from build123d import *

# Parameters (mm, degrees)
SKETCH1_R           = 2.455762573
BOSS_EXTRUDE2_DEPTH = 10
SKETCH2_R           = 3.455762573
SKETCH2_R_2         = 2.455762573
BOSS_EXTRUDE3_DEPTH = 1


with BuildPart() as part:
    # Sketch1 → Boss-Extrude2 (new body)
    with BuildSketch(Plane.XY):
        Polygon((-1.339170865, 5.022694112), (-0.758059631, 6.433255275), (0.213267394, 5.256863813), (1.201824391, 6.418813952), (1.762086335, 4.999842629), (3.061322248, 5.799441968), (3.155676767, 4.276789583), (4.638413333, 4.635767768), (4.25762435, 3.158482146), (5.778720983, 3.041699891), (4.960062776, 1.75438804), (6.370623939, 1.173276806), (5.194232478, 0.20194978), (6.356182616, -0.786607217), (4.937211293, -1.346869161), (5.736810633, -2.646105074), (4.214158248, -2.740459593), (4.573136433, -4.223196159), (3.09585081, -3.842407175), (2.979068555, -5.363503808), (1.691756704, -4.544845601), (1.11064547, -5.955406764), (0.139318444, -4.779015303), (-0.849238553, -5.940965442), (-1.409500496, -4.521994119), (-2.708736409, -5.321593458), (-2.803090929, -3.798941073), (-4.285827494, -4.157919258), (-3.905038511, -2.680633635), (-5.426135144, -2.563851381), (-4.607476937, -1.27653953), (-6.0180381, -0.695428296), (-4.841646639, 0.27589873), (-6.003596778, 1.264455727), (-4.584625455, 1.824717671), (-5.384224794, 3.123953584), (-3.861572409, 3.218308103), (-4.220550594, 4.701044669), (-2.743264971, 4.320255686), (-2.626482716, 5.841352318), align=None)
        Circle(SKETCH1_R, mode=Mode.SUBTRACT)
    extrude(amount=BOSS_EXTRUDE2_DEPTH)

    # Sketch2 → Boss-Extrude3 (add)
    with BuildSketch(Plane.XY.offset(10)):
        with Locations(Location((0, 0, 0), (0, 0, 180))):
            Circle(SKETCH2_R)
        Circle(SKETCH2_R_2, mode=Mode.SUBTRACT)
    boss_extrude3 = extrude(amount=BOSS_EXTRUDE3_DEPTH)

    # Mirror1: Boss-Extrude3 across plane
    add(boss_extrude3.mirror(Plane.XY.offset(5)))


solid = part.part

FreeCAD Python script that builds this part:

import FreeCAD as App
import Part
import Sketcher
Q = App.Units.Quantity

doc = App.newDocument("Part")
body = doc.addObject("PartDesign::Body", "Body")

sketch1 = body.newObject("Sketcher::SketchObject", "Sketch")
sketch1.AttachmentSupport = (doc.getObject("XY_Plane"), [""])
sketch1.MapMode = "FlatFace"
sketch1.addGeometry(Part.LineSegment(App.Vector(-0.75806, 6.433255, 0), App.Vector(-1.339171, 5.022694, 0)), False)
sketch1.addGeometry(Part.LineSegment(App.Vector(-1.339171, 5.022694, 0), App.Vector(-2.626483, 5.841352, 0)), False)
sketch1.addGeometry(Part.LineSegment(App.Vector(-2.626483, 5.841352, 0), App.Vector(-2.743265, 4.320256, 0)), False)
sketch1.addGeometry(Part.LineSegment(App.Vector(-2.743265, 4.320256, 0), App.Vector(-4.220551, 4.701045, 0)), False)
sketch1.addGeometry(Part.LineSegment(App.Vector(-4.220551, 4.701045, 0), App.Vector(-3.861572, 3.218308, 0)), False)
sketch1.addGeometry(Part.LineSegment(App.Vector(-3.861572, 3.218308, 0), App.Vector(-5.384225, 3.123954, 0)), False)
sketch1.addGeometry(Part.LineSegment(App.Vector(-5.384225, 3.123954, 0), App.Vector(-4.584625, 1.824718, 0)), False)
sketch1.addGeometry(Part.LineSegment(App.Vector(-4.584625, 1.824718, 0), App.Vector(-6.003597, 1.264456, 0)), False)
sketch1.addGeometry(Part.LineSegment(App.Vector(-6.003597, 1.264456, 0), App.Vector(-4.841647, 0.275899, 0)), False)
sketch1.addGeometry(Part.LineSegment(App.Vector(-4.841647, 0.275899, 0), App.Vector(-6.018038, -0.695428, 0)), False)
sketch1.addGeometry(Part.LineSegment(App.Vector(-6.018038, -0.695428, 0), App.Vector(-4.607477, -1.27654, 0)), False)
sketch1.addGeometry(Part.LineSegment(App.Vector(-4.607477, -1.27654, 0), App.Vector(-5.426135, -2.563851, 0)), False)
sketch1.addGeometry(Part.LineSegment(App.Vector(-5.426135, -2.563851, 0), App.Vector(-3.905039, -2.680634, 0)), False)
sketch1.addGeometry(Part.LineSegment(App.Vector(-3.905039, -2.680634, 0), App.Vector(-4.285827, -4.157919, 0)), False)
sketch1.addGeometry(Part.LineSegment(App.Vector(-4.285827, -4.157919, 0), App.Vector(-2.803091, -3.798941, 0)), False)
sketch1.addGeometry(Part.LineSegment(App.Vector(-2.803091, -3.798941, 0), App.Vector(-2.708736, -5.321593, 0)), False)
sketch1.addGeometry(Part.LineSegment(App.Vector(-2.708736, -5.321593, 0), App.Vector(-1.4095, -4.521994, 0)), False)
sketch1.addGeometry(Part.LineSegment(App.Vector(-1.4095, -4.521994, 0), App.Vector(-0.849239, -5.940965, 0)), False)
sketch1.addGeometry(Part.LineSegment(App.Vector(-0.849239, -5.940965, 0), App.Vector(0.139318, -4.779015, 0)), False)
sketch1.addGeometry(Part.LineSegment(App.Vector(0.139318, -4.779015, 0), App.Vector(1.110645, -5.955407, 0)), False)
sketch1.addGeometry(Part.LineSegment(App.Vector(1.110645, -5.955407, 0), App.Vector(1.691757, -4.544846, 0)), False)
sketch1.addGeometry(Part.LineSegment(App.Vector(1.691757, -4.544846, 0), App.Vector(2.979069, -5.363504, 0)), False)
sketch1.addGeometry(Part.LineSegment(App.Vector(2.979069, -5.363504, 0), App.Vector(3.095851, -3.842407, 0)), False)
sketch1.addGeometry(Part.LineSegment(App.Vector(3.095851, -3.842407, 0), App.Vector(4.573136, -4.223196, 0)), False)
sketch1.addGeometry(Part.LineSegment(App.Vector(4.573136, -4.223196, 0), App.Vector(4.214158, -2.74046, 0)), False)
sketch1.addGeometry(Part.LineSegment(App.Vector(4.214158, -2.74046, 0), App.Vector(5.736811, -2.646105, 0)), False)
sketch1.addGeometry(Part.LineSegment(App.Vector(5.736811, -2.646105, 0), App.Vector(4.937211, -1.346869, 0)), False)
sketch1.addGeometry(Part.LineSegment(App.Vector(4.937211, -1.346869, 0), App.Vector(6.356183, -0.786607, 0)), False)
sketch1.addGeometry(Part.LineSegment(App.Vector(6.356183, -0.786607, 0), App.Vector(5.194232, 0.20195, 0)), False)
sketch1.addGeometry(Part.LineSegment(App.Vector(5.194232, 0.20195, 0), App.Vector(6.370624, 1.173277, 0)), False)
sketch1.addGeometry(Part.LineSegment(App.Vector(6.370624, 1.173277, 0), App.Vector(4.960063, 1.754388, 0)), False)
sketch1.addGeometry(Part.LineSegment(App.Vector(4.960063, 1.754388, 0), App.Vector(5.778721, 3.0417, 0)), False)
sketch1.addGeometry(Part.LineSegment(App.Vector(5.778721, 3.0417, 0), App.Vector(4.257624, 3.158482, 0)), False)
sketch1.addGeometry(Part.LineSegment(App.Vector(4.257624, 3.158482, 0), App.Vector(4.638413, 4.635768, 0)), False)
sketch1.addGeometry(Part.LineSegment(App.Vector(4.638413, 4.635768, 0), App.Vector(3.155677, 4.27679, 0)), False)
sketch1.addGeometry(Part.LineSegment(App.Vector(3.155677, 4.27679, 0), App.Vector(3.061322, 5.799442, 0)), False)
sketch1.addGeometry(Part.LineSegment(App.Vector(3.061322, 5.799442, 0), App.Vector(1.762086, 4.999843, 0)), False)
sketch1.addGeometry(Part.LineSegment(App.Vector(1.762086, 4.999843, 0), App.Vector(1.201824, 6.418814, 0)), False)
sketch1.addGeometry(Part.LineSegment(App.Vector(1.201824, 6.418814, 0), App.Vector(0.213267, 5.256864, 0)), False)
sketch1.addGeometry(Part.LineSegment(App.Vector(0.213267, 5.256864, 0), App.Vector(-0.75806, 6.433255, 0)), False)
sketch1.addGeometry(Part.Circle(App.Vector(0, 0, 0), App.Vector(0, 0, 1), 2.455763), False)
sketch1.addConstraint(Sketcher.Constraint("Coincident", 0, 2, 1, 1))
sketch1.addConstraint(Sketcher.Constraint("Coincident", 1, 2, 2, 1))
sketch1.addConstraint(Sketcher.Constraint("Coincident", 2, 2, 3, 1))
sketch1.addConstraint(Sketcher.Constraint("Coincident", 3, 2, 4, 1))
sketch1.addConstraint(Sketcher.Constraint("Coincident", 4, 2, 5, 1))
sketch1.addConstraint(Sketcher.Constraint("Coincident", 5, 2, 6, 1))
sketch1.addConstraint(Sketcher.Constraint("Coincident", 6, 2, 7, 1))
sketch1.addConstraint(Sketcher.Constraint("Coincident", 7, 2, 8, 1))
sketch1.addConstraint(Sketcher.Constraint("Coincident", 8, 2, 9, 1))
sketch1.addConstraint(Sketcher.Constraint("Coincident", 9, 2, 10, 1))
sketch1.addConstraint(Sketcher.Constraint("Coincident", 10, 2, 11, 1))
sketch1.addConstraint(Sketcher.Constraint("Coincident", 11, 2, 12, 1))
sketch1.addConstraint(Sketcher.Constraint("Coincident", 12, 2, 13, 1))
sketch1.addConstraint(Sketcher.Constraint("Coincident", 13, 2, 14, 1))
sketch1.addConstraint(Sketcher.Constraint("Coincident", 14, 2, 15, 1))
sketch1.addConstraint(Sketcher.Constraint("Coincident", 15, 2, 16, 1))
sketch1.addConstraint(Sketcher.Constraint("Coincident", 16, 2, 17, 1))
sketch1.addConstraint(Sketcher.Constraint("Coincident", 17, 2, 18, 1))
sketch1.addConstraint(Sketcher.Constraint("Coincident", 18, 2, 19, 1))
sketch1.addConstraint(Sketcher.Constraint("Coincident", 19, 2, 20, 1))
sketch1.addConstraint(Sketcher.Constraint("Coincident", 20, 2, 21, 1))
sketch1.addConstraint(Sketcher.Constraint("Coincident", 21, 2, 22, 1))
sketch1.addConstraint(Sketcher.Constraint("Coincident", 22, 2, 23, 1))
sketch1.addConstraint(Sketcher.Constraint("Coincident", 23, 2, 24, 1))
sketch1.addConstraint(Sketcher.Constraint("Coincident", 24, 2, 25, 1))
sketch1.addConstraint(Sketcher.Constraint("Coincident", 25, 2, 26, 1))
sketch1.addConstraint(Sketcher.Constraint("Coincident", 26, 2, 27, 1))
sketch1.addConstraint(Sketcher.Constraint("Coincident", 27, 2, 28, 1))
sketch1.addConstraint(Sketcher.Constraint("Coincident", 28, 2, 29, 1))
sketch1.addConstraint(Sketcher.Constraint("Coincident", 29, 2, 30, 1))
sketch1.addConstraint(Sketcher.Constraint("Coincident", 30, 2, 31, 1))
sketch1.addConstraint(Sketcher.Constraint("Coincident", 31, 2, 32, 1))
sketch1.addConstraint(Sketcher.Constraint("Coincident", 32, 2, 33, 1))
sketch1.addConstraint(Sketcher.Constraint("Coincident", 33, 2, 34, 1))
sketch1.addConstraint(Sketcher.Constraint("Coincident", 34, 2, 35, 1))
sketch1.addConstraint(Sketcher.Constraint("Coincident", 35, 2, 36, 1))
sketch1.addConstraint(Sketcher.Constraint("Coincident", 36, 2, 37, 1))
sketch1.addConstraint(Sketcher.Constraint("Coincident", 37, 2, 38, 1))
sketch1.addConstraint(Sketcher.Constraint("Coincident", 38, 2, 39, 1))
sketch1.addConstraint(Sketcher.Constraint("Coincident", 39, 2, 0, 1))
sketch1.addConstraint(Sketcher.Constraint("Coincident", 40, 3, -1, 1))
sketch1.addConstraint(Sketcher.Constraint("Diameter", 40, Q("4.911525 mm")))
sketch1.addConstraint(Sketcher.Constraint("DistanceX", 9, 2, 12, 2, Q("2.113 mm")))
sketch1.addConstraint(Sketcher.Constraint("DistanceY", 19, 2, 22, 2, Q("2.113 mm")))
sketch1.addConstraint(Sketcher.Constraint("DistanceX", 32, 2, 29, 2, Q("2.113 mm")))
sketch1.addConstraint(Sketcher.Constraint("DistanceY", -1, 1, 8, 2, Q("0.275899 mm")))
sketch1.addConstraint(Sketcher.Constraint("DistanceX", 16, 2, -1, 1, Q("1.4095 mm")))
sketch1.addConstraint(Sketcher.Constraint("DistanceY", -1, 1, 31, 2, Q("3.0417 mm")))
sketch1.addConstraint(Sketcher.Constraint("DistanceX", 4, 2, 0, 2, Q("2.522402 mm")))
sketch1.addConstraint(Sketcher.Constraint("DistanceY", 5, 2, 1, 2, Q("2.717399 mm")))
sketch1.addConstraint(Sketcher.Constraint("DistanceX", 5, 2, 6, 2, Q("0.799599 mm")))
sketch1.addConstraint(Sketcher.Constraint("DistanceY", 7, 2, 2, 2, Q("3.0558 mm")))
sketch1.addConstraint(Sketcher.Constraint("DistanceY", 14, 2, 10, 2, Q("2.522402 mm")))
sketch1.addConstraint(Sketcher.Constraint("DistanceX", 11, 2, 15, 2, Q("2.717399 mm")))
sketch1.addConstraint(Sketcher.Constraint("DistanceY", 15, 2, 16, 2, Q("0.799599 mm")))
sketch1.addConstraint(Sketcher.Constraint("DistanceX", 12, 2, 17, 2, Q("3.0558 mm")))
sketch1.addConstraint(Sketcher.Constraint("DistanceX", 20, 2, 24, 2, Q("2.522402 mm")))
sketch1.addConstraint(Sketcher.Constraint("DistanceY", 21, 2, 25, 2, Q("2.717399 mm")))
sketch1.addConstraint(Sketcher.Constraint("DistanceX", 26, 2, 25, 2, Q("0.799599 mm")))
sketch1.addConstraint(Sketcher.Constraint("DistanceY", 22, 2, 27, 2, Q("3.0558 mm")))
sketch1.addConstraint(Sketcher.Constraint("DistanceY", 30, 2, 34, 2, Q("2.522402 mm")))
sketch1.addConstraint(Sketcher.Constraint("DistanceX", 35, 2, 31, 2, Q("2.717399 mm")))
sketch1.addConstraint(Sketcher.Constraint("DistanceY", 36, 2, 35, 2, Q("0.799599 mm")))
sketch1.addConstraint(Sketcher.Constraint("DistanceX", 0, 2, -1, 1, Q("1.339171 mm")))
sketch1.addConstraint(Sketcher.Constraint("DistanceX", 3, 2, -1, 1, Q("4.220551 mm")))
sketch1.addConstraint(Sketcher.Constraint("DistanceY", -1, 1, 4, 2, Q("3.218308 mm")))
sketch1.addConstraint(Sketcher.Constraint("DistanceX", 9, 2, -1, 1, Q("6.018038 mm")))
sketch1.addConstraint(Sketcher.Constraint("DistanceY", 9, 2, -1, 1, Q("0.695428 mm")))
sketch1.addConstraint(Sketcher.Constraint("DistanceY", 10, 2, -1, 1, Q("1.27654 mm")))
sketch1.addConstraint(Sketcher.Constraint("DistanceY", 11, 2, -1, 1, Q("2.563851 mm")))
sketch1.addConstraint(Sketcher.Constraint("DistanceY", 13, 2, -1, 1, Q("4.157919 mm")))
sketch1.addConstraint(Sketcher.Constraint("DistanceX", 14, 2, -1, 1, Q("2.803091 mm")))
sketch1.addConstraint(Sketcher.Constraint("DistanceX", -1, 1, 18, 2, Q("0.139318 mm")))
sketch1.addConstraint(Sketcher.Constraint("DistanceX", -1, 1, 21, 2, Q("2.979069 mm")))
sketch1.addConstraint(Sketcher.Constraint("DistanceX", -1, 1, 22, 2, Q("3.095851 mm")))
sketch1.addConstraint(Sketcher.Constraint("DistanceX", -1, 1, 24, 2, Q("4.214158 mm")))
sketch1.addConstraint(Sketcher.Constraint("DistanceY", 24, 2, -1, 1, Q("2.74046 mm")))
sketch1.addConstraint(Sketcher.Constraint("DistanceX", -1, 1, 25, 2, Q("5.736811 mm")))
sketch1.addConstraint(Sketcher.Constraint("DistanceY", 26, 2, -1, 1, Q("1.346869 mm")))
sketch1.addConstraint(Sketcher.Constraint("DistanceY", -1, 1, 28, 2, Q("0.20195 mm")))
sketch1.addConstraint(Sketcher.Constraint("DistanceY", -1, 1, 30, 2, Q("1.754388 mm")))
sketch1.addConstraint(Sketcher.Constraint("DistanceX", -1, 1, 31, 2, Q("5.778721 mm")))
sketch1.addConstraint(Sketcher.Constraint("DistanceY", -1, 1, 35, 2, Q("5.799442 mm")))
sketch1.addConstraint(Sketcher.Constraint("DistanceX", 39, 2, -1, 1, Q("0.75806 mm")))
sketch1.addConstraint(Sketcher.Constraint("DistanceX", 1, 2, 0, 2, Q("1.287312 mm")))
sketch1.addConstraint(Sketcher.Constraint("DistanceY", 0, 2, 1, 2, Q("0.818658 mm")))
sketch1.addConstraint(Sketcher.Constraint("DistanceY", 2, 2, 0, 2, Q("0.702438 mm")))
sketch1.addConstraint(Sketcher.Constraint("DistanceY", 2, 2, 3, 2, Q("0.380789 mm")))
sketch1.addConstraint(Sketcher.Constraint("DistanceX", 5, 2, 2, 2, Q("2.64096 mm")))
sketch1.addConstraint(Sketcher.Constraint("DistanceY", 6, 2, 4, 2, Q("1.39359 mm")))
sketch1.addConstraint(Sketcher.Constraint("DistanceY", 6, 2, 2, 2, Q("2.495538 mm")))
sketch1.addConstraint(Sketcher.Constraint("DistanceX", 7, 2, 6, 2, Q("1.418971 mm")))
sketch1.addConstraint(Sketcher.Constraint("DistanceX", 7, 2, 8, 2, Q("1.16195 mm")))
sketch1.addConstraint(Sketcher.Constraint("DistanceX", 9, 2, 8, 2, Q("1.176391 mm")))
sketch1.addConstraint(Sketcher.Constraint("DistanceX", 9, 2, 10, 2, Q("1.410561 mm")))
sketch1.addConstraint(Sketcher.Constraint("DistanceX", 11, 2, 10, 2, Q("0.818658 mm")))
sketch1.addConstraint(Sketcher.Constraint("DistanceY", 12, 2, 7, 2, Q("3.945089 mm")))
sketch1.addConstraint(Sketcher.Constraint("DistanceX", 13, 2, 12, 2, Q("0.380789 mm")))
sketch1.addConstraint(Sketcher.Constraint("DistanceY", 15, 2, 12, 2, Q("2.64096 mm")))
sketch1.addConstraint(Sketcher.Constraint("DistanceY", 17, 2, 16, 2, Q("1.418971 mm")))
sketch1.addConstraint(Sketcher.Constraint("DistanceY", 17, 2, 18, 2, Q("1.16195 mm")))
sketch1.addConstraint(Sketcher.Constraint("DistanceY", 19, 2, 18, 2, Q("1.176391 mm")))
sketch1.addConstraint(Sketcher.Constraint("DistanceX", 15, 2, 19, 2, Q("3.819382 mm")))
sketch1.addConstraint(Sketcher.Constraint("DistanceY", 19, 2, 20, 2, Q("1.410561 mm")))
sketch1.addConstraint(Sketcher.Constraint("DistanceY", 21, 2, 20, 2, Q("0.818658 mm")))
sketch1.addConstraint(Sketcher.Constraint("DistanceY", 23, 2, 22, 2, Q("0.380789 mm")))
sketch1.addConstraint(Sketcher.Constraint("DistanceX", 20, 2, 23, 2, Q("2.88138 mm")))
sketch1.addConstraint(Sketcher.Constraint("DistanceX", 26, 2, 27, 2, Q("1.418971 mm")))
sketch1.addConstraint(Sketcher.Constraint("DistanceX", 28, 2, 27, 2, Q("1.16195 mm")))
sketch1.addConstraint(Sketcher.Constraint("DistanceX", 28, 2, 29, 2, Q("1.176391 mm")))
sketch1.addConstraint(Sketcher.Constraint("DistanceY", 25, 2, 29, 2, Q("3.819382 mm")))
sketch1.addConstraint(Sketcher.Constraint("DistanceX", 30, 2, 29, 2, Q("1.410561 mm")))
sketch1.addConstraint(Sketcher.Constraint("DistanceY", 27, 2, 32, 2, Q("3.945089 mm")))
sketch1.addConstraint(Sketcher.Constraint("DistanceX", 32, 2, 33, 2, Q("0.380789 mm")))
sketch1.addConstraint(Sketcher.Constraint("DistanceY", 30, 2, 33, 2, Q("2.88138 mm")))
sketch1.addConstraint(Sketcher.Constraint("DistanceX", 36, 2, 34, 2, Q("1.39359 mm")))
sketch1.addConstraint(Sketcher.Constraint("DistanceX", 36, 2, 32, 2, Q("2.495538 mm")))
sketch1.addConstraint(Sketcher.Constraint("DistanceX", 37, 2, 36, 2, Q("0.560262 mm")))
sketch1.addConstraint(Sketcher.Constraint("DistanceY", 36, 2, 37, 2, Q("1.418971 mm")))
sketch1.addConstraint(Sketcher.Constraint("DistanceY", 38, 2, 37, 2, Q("1.16195 mm")))
sketch1.addConstraint(Sketcher.Constraint("DistanceX", 0, 2, 38, 2, Q("1.552438 mm")))
sketch1.addConstraint(Sketcher.Constraint("DistanceY", 0, 2, 39, 2, Q("1.410561 mm")))
pad1 = body.newObject("PartDesign::Pad", "Pad")
pad1.Profile = sketch1
pad1.Length = 10

sketch2 = body.newObject("Sketcher::SketchObject", "Sketch001")
sketch2.AttachmentSupport = (doc.getObject("XY_Plane"), [""])
sketch2.MapMode = "FlatFace"
sketch2.AttachmentOffset = App.Placement(App.Vector(0, 0, 10), App.Rotation())
sketch2.addGeometry(Part.Circle(App.Vector(0, 0, 0), App.Vector(0, 0, 1), 3.5), False)
sketch2.addGeometry(Part.Circle(App.Vector(0, 0, 0), App.Vector(0, 0, 1), 2.5), False)
sketch2.addConstraint(Sketcher.Constraint("Coincident", 0, 3, -1, 1))
sketch2.addConstraint(Sketcher.Constraint("Coincident", 1, 3, -1, 1))
sketch2.addConstraint(Sketcher.Constraint("Diameter", 0, Q("6.911525 mm")))
sketch2.addConstraint(Sketcher.Constraint("Diameter", 1, Q("4.911525 mm")))
pad2 = body.newObject("PartDesign::Pad", "Pad001")
pad2.Profile = sketch2
pad2.Length = 1
doc.recompute()

datumplane = body.newObject("PartDesign::Plane", "DatumPlane")
datumplane.AttachmentSupport = (doc.getObject("XY_Plane"), [""])
datumplane.MapMode = "FlatFace"
datumplane.AttachmentOffset = App.Placement(App.Vector(0, 0, 5), App.Rotation())
mirrored = body.newObject("PartDesign::Mirrored", "Mirrored")
mirrored.Originals = [pad2]
mirrored.MirrorPlane = (datumplane, [""])
body.Tip = mirrored

doc.recompute()
